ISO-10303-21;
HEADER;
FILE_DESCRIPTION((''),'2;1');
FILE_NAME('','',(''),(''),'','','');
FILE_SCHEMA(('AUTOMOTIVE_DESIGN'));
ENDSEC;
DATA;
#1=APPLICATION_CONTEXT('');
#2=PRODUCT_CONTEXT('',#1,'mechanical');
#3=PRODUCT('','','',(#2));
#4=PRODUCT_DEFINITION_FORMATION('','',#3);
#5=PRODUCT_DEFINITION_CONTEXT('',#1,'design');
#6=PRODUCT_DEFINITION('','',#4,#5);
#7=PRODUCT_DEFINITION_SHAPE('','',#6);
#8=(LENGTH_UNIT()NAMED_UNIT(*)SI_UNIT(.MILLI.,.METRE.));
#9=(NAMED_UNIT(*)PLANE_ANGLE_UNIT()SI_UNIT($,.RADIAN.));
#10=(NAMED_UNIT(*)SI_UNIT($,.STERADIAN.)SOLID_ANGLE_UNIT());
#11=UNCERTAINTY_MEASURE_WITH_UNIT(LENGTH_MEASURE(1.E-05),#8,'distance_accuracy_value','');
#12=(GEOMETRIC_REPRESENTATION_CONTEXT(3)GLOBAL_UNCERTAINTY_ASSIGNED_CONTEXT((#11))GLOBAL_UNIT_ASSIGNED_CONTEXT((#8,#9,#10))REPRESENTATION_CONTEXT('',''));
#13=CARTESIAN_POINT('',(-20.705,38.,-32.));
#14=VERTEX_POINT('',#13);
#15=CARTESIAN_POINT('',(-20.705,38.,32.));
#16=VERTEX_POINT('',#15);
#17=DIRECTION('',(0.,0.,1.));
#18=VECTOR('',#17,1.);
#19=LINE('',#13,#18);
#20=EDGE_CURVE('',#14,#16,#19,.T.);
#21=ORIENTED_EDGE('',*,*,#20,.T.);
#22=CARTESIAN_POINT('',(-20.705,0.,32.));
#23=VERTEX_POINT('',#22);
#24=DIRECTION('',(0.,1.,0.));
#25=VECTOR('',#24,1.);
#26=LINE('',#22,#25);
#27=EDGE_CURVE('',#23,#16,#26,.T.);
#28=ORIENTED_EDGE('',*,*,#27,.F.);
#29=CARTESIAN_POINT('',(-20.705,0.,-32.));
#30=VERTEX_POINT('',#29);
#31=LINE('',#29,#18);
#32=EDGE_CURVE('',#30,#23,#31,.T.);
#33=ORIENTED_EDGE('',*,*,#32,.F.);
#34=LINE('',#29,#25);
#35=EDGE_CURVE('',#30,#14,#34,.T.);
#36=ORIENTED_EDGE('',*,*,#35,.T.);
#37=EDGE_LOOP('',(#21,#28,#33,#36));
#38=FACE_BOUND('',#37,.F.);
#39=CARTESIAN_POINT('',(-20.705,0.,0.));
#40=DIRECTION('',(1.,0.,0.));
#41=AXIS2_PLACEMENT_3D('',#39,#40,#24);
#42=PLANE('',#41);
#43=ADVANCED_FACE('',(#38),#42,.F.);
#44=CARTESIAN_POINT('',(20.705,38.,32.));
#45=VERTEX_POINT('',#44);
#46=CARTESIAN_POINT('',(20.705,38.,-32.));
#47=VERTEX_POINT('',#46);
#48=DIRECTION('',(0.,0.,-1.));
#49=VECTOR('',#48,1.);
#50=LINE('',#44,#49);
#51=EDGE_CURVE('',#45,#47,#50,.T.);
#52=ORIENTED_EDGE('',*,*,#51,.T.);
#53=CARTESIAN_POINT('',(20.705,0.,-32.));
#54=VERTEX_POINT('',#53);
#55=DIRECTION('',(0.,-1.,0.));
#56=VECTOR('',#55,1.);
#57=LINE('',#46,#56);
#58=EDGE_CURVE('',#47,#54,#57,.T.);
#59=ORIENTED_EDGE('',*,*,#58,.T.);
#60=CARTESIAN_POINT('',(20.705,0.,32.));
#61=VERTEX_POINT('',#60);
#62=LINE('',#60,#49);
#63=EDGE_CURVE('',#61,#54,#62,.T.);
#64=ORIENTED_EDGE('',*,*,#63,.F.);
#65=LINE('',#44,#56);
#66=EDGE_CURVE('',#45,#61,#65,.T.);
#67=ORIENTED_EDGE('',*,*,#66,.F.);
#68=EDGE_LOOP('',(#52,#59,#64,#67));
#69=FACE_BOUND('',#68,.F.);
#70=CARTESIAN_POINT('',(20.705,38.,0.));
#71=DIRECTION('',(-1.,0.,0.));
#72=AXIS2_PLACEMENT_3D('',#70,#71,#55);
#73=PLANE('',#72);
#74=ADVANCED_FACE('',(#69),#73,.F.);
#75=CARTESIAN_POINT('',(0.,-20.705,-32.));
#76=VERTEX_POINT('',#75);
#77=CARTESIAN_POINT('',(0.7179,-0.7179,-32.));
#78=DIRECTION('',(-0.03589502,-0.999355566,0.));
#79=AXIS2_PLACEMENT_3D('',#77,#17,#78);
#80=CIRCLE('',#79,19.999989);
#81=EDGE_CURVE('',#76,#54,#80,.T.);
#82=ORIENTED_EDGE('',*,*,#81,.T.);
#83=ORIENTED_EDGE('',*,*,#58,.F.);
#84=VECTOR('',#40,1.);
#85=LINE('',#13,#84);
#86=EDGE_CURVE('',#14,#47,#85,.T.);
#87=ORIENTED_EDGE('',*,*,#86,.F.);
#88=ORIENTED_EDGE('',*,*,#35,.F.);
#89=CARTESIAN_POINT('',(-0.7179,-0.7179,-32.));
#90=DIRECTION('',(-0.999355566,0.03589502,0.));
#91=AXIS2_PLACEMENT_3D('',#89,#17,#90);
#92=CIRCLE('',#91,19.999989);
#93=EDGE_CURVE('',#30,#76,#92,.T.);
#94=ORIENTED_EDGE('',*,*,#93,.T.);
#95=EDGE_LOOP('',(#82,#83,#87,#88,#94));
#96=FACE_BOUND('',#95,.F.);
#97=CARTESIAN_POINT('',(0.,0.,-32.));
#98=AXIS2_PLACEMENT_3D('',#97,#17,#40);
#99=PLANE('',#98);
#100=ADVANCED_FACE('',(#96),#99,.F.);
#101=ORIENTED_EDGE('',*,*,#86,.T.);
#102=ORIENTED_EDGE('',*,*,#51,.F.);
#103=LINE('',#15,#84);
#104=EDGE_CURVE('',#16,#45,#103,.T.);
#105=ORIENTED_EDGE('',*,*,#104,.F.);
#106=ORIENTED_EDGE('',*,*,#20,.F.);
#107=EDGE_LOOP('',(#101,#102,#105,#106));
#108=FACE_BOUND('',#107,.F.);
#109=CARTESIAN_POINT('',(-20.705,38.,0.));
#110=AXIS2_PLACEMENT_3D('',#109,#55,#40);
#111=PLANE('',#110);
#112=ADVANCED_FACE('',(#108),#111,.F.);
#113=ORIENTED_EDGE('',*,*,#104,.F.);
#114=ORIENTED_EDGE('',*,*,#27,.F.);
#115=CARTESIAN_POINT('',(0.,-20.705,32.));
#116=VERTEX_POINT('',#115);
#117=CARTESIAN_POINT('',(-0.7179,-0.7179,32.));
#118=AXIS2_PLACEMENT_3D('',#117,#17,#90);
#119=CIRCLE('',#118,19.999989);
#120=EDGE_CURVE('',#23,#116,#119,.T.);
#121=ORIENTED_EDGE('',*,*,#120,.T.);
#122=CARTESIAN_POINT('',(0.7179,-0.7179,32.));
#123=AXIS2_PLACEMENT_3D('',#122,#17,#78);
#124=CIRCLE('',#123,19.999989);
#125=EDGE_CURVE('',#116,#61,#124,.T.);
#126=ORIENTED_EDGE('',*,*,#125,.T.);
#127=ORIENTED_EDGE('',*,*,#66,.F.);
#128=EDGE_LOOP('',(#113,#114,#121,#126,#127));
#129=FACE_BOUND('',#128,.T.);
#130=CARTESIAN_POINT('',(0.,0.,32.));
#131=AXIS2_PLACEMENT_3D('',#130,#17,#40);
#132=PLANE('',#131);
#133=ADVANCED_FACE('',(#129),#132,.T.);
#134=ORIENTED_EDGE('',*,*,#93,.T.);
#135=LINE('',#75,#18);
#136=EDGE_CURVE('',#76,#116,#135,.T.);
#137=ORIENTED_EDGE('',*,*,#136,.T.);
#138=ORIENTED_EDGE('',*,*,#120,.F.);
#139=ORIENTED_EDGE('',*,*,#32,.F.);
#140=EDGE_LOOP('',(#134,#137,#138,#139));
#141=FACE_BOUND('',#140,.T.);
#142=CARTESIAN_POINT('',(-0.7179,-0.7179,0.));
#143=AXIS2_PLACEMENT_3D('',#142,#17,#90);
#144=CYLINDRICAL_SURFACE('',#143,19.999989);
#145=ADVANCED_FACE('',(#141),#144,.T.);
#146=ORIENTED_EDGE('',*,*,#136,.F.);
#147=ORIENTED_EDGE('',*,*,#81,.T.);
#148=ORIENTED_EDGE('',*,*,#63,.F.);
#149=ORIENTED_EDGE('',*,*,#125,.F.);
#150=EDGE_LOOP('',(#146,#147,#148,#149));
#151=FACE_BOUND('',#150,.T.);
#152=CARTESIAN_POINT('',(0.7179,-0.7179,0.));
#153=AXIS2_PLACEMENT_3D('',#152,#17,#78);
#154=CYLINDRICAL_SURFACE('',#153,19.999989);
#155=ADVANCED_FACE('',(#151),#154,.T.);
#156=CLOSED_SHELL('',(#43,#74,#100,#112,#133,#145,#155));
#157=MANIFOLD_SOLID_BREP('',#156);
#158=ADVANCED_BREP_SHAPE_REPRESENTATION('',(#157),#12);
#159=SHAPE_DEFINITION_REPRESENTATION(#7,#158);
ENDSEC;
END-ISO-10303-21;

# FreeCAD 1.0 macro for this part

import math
import FreeCAD as App
import Part
import Sketcher

doc = App.newDocument("Part")
body = doc.addObject("PartDesign::Body", "Body")

# Sketch on XY plane
sketch1 = body.newObject("Sketcher::SketchObject", "Sketch")
sketch1.AttachmentSupport = (doc.getObject("XY_Plane"), [""])
sketch1.MapMode = "FlatFace"
sketch1.addGeometry([
    Part.LineSegment(App.Vector(21, 38, 0), App.Vector(-21, 38, 0)),  # 0
    Part.LineSegment(App.Vector(-21, 38, 0), App.Vector(-21, 0, 0)),  # 1
    Part.ArcOfCircle(Part.Circle(App.Vector(-1, -1, 0), App.Vector(0, 0, 1), 20), math.radians(178), math.radians(272)),  # 2
    Part.ArcOfCircle(Part.Circle(App.Vector(1, -1, 0), App.Vector(0, 0, 1), 20), math.radians(-92), math.radians(2)),  # 3
    Part.LineSegment(App.Vector(21, 0, 0), App.Vector(21, 38, 0)),  # 4
], False)
sketch1.addConstraint([
    Sketcher.Constraint("Coincident", 0, 2, 1, 1),
    Sketcher.Constraint("Coincident", 1, 2, 2, 1),
    Sketcher.Constraint("Coincident", 2, 2, 3, 1),
    Sketcher.Constraint("Coincident", 3, 2, 4, 1),
    Sketcher.Constraint("Coincident", 4, 2, 0, 1),
    Sketcher.Constraint("Horizontal", 0),
    Sketcher.Constraint("Vertical", 1),
    Sketcher.Constraint("Vertical", 4),
    Sketcher.Constraint("Equal", 2, 3),
    Sketcher.Constraint("Symmetric", 1, 2, 3, 2, -1, 1),
    Sketcher.Constraint("Symmetric", 2, 3, 3, 3, -2),
    Sketcher.Constraint("Radius", 2, 20.0),
    Sketcher.Constraint("DistanceY", 1, 2, 1, 1, 38.0),
    Sketcher.Constraint("DistanceY", 2, 2, 0, 2, 58.705),
    Sketcher.Constraint("DistanceX", 0, 2, 0, 1, 41.41),
])
pad1 = body.newObject("PartDesign::Pad", "Pad")
pad1.Profile = sketch1
pad1.Length = 64
pad1.Midplane = True

doc.recompute()
